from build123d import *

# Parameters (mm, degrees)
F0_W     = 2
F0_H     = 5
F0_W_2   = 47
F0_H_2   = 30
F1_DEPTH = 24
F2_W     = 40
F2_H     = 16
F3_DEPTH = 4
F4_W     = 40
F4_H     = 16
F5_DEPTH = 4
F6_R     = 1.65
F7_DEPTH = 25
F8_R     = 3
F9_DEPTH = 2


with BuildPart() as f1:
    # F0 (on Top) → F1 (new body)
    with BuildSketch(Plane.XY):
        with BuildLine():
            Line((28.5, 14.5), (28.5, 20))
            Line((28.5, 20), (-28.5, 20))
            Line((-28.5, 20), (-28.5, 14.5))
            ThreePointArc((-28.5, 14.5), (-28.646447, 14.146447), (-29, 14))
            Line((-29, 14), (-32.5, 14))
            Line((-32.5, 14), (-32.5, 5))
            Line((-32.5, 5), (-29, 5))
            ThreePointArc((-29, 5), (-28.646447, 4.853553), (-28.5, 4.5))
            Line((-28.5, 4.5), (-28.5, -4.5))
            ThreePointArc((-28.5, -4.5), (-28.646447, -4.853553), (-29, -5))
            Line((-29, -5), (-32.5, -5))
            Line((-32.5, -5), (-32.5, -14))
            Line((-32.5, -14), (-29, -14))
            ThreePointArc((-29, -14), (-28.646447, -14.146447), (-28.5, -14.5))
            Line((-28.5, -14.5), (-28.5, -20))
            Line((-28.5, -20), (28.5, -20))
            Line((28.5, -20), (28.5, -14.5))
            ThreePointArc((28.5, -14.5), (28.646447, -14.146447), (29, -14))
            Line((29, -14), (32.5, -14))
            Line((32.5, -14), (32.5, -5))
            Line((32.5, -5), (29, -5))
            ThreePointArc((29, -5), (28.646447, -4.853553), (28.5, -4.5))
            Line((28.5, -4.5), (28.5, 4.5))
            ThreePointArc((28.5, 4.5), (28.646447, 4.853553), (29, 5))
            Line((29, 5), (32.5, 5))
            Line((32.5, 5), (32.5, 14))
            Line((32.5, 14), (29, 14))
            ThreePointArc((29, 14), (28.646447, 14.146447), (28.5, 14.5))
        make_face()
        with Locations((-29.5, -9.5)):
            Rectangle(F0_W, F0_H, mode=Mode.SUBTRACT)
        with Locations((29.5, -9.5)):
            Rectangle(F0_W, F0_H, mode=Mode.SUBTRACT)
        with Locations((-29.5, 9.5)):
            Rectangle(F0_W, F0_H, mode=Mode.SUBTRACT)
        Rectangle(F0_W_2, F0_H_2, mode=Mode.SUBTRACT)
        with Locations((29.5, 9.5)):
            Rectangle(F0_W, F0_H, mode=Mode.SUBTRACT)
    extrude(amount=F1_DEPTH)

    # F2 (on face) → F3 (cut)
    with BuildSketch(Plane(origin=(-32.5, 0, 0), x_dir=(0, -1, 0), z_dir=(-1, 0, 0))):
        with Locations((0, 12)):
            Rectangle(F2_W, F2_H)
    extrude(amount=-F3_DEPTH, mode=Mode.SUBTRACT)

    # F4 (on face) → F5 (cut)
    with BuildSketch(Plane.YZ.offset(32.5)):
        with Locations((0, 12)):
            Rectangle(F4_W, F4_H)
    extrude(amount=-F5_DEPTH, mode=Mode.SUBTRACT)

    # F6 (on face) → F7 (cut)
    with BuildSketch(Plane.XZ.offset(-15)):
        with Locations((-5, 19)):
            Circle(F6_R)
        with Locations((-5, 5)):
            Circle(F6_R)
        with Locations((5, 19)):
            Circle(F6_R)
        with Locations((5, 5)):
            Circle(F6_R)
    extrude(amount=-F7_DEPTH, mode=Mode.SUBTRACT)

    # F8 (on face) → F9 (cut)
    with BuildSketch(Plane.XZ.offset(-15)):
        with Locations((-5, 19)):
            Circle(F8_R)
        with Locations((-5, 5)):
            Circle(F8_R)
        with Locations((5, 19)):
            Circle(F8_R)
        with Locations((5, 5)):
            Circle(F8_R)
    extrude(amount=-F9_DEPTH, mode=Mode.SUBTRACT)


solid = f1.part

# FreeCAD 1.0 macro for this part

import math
import FreeCAD as App
import Part
import Sketcher

V = App.Vector

doc = App.newDocument("Part")
body = doc.addObject("PartDesign::Body", "Body")

# Sketch on XY plane
sketch1 = doc.addObject("Sketcher::SketchObject", "Sketch")
body.addObject(sketch1)
sketch1.AttachmentSupport = (doc.XY_Plane, [""])
sketch1.MapMode = "FlatFace"
sketch1.addGeometry(Part.LineSegment(V(28.5, 14.5, 0), V(28.5, 20, 0)), False)
sketch1.addGeometry(Part.LineSegment(V(28.5, 20, 0), V(-28.5, 20, 0)), False)
sketch1.addGeometry(Part.LineSegment(V(-28.5, 20, 0), V(-28.5, 14.5, 0)), False)
sketch1.addGeometry(Part.ArcOfCircle(Part.Circle(V(-29.000001, 14.500001, 0), V(0, 0, 1), 0.500001), math.radians(-89.999847), math.radians(-0.000153)), False)
sketch1.addGeometry(Part.LineSegment(V(-29, 14, 0), V(-32.5, 14, 0)), False)
sketch1.addGeometry(Part.LineSegment(V(-32.5, 14, 0), V(-32.5, 5, 0)), False)
sketch1.addGeometry(Part.LineSegment(V(-32.5, 5, 0), V(-29, 5, 0)), False)
sketch1.addGeometry(Part.ArcOfCircle(Part.Circle(V(-29.000001, 4.499999, 0), V(0, 0, 1), 0.500001), math.radians(0.000153), math.radians(89.999847)), False)
sketch1.addGeometry(Part.LineSegment(V(-28.5, 4.5, 0), V(-28.5, -4.5, 0)), False)
sketch1.addGeometry(Part.ArcOfCircle(Part.Circle(V(-29.000001, -4.499999, 0), V(0, 0, 1), 0.500001), math.radians(-89.999847), math.radians(-0.000153)), False)
sketch1.addGeometry(Part.LineSegment(V(-29, -5, 0), V(-32.5, -5, 0)), False)
sketch1.addGeometry(Part.LineSegment(V(-32.5, -5, 0), V(-32.5, -14, 0)), False)
sketch1.addGeometry(Part.LineSegment(V(-32.5, -14, 0), V(-29, -14, 0)), False)
sketch1.addGeometry(Part.ArcOfCircle(Part.Circle(V(-29.000001, -14.500001, 0), V(0, 0, 1), 0.500001), math.radians(0.000153), math.radians(89.999847)), False)
sketch1.addGeometry(Part.LineSegment(V(-28.5, -14.5, 0), V(-28.5, -20, 0)), False)
sketch1.addGeometry(Part.LineSegment(V(-28.5, -20, 0), V(28.5, -20, 0)), False)
sketch1.addGeometry(Part.LineSegment(V(28.5, -20, 0), V(28.5, -14.5, 0)), False)
sketch1.addGeometry(Part.ArcOfCircle(Part.Circle(V(29.000001, -14.500001, 0), V(0, 0, 1), 0.500001), math.radians(90.000153), math.radians(179.999847)), False)
sketch1.addGeometry(Part.LineSegment(V(29, -14, 0), V(32.5, -14, 0)), False)
sketch1.addGeometry(Part.LineSegment(V(32.5, -14, 0), V(32.5, -5, 0)), False)
sketch1.addGeometry(Part.LineSegment(V(32.5, -5, 0), V(29, -5, 0)), False)
sketch1.addGeometry(Part.ArcOfCircle(Part.Circle(V(29.000001, -4.499999, 0), V(0, 0, 1), 0.500001), math.radians(-179.999847), math.radians(-90.000153)), False)
sketch1.addGeometry(Part.LineSegment(V(28.5, -4.5, 0), V(28.5, 4.5, 0)), False)
sketch1.addGeometry(Part.ArcOfCircle(Part.Circle(V(29.000001, 4.499999, 0), V(0, 0, 1), 0.500001), math.radians(90.000153), math.radians(179.999847)), False)
sketch1.addGeometry(Part.LineSegment(V(29, 5, 0), V(32.5, 5, 0)), False)
sketch1.addGeometry(Part.LineSegment(V(32.5, 5, 0), V(32.5, 14, 0)), False)
sketch1.addGeometry(Part.LineSegment(V(32.5, 14, 0), V(29, 14, 0)), False)
sketch1.addGeometry(Part.ArcOfCircle(Part.Circle(V(29.000001, 14.500001, 0), V(0, 0, 1), 0.500001), math.radians(-179.999847), math.radians(-90.000153)), False)
sketch1.addGeometry(Part.LineSegment(V(-28.5, -12, 0), V(-30.5, -12, 0)), False)
sketch1.addGeometry(Part.LineSegment(V(-30.5, -12, 0), V(-30.5, -7, 0)), False)
sketch1.addGeometry(Part.LineSegment(V(-30.5, -7, 0), V(-28.5, -7, 0)), False)
sketch1.addGeometry(Part.LineSegment(V(-28.5, -7, 0), V(-28.5, -12, 0)), False)
sketch1.addGeometry(Part.LineSegment(V(30.5, -12, 0), V(28.5, -12, 0)), False)
sketch1.addGeometry(Part.LineSegment(V(28.5, -12, 0), V(28.5, -7, 0)), False)
sketch1.addGeometry(Part.LineSegment(V(28.5, -7, 0), V(30.5, -7, 0)), False)
sketch1.addGeometry(Part.LineSegment(V(30.5, -7, 0), V(30.5, -12, 0)), False)
sketch1.addGeometry(Part.LineSegment(V(-28.5, 7, 0), V(-30.5, 7, 0)), False)
sketch1.addGeometry(Part.LineSegment(V(-30.5, 7, 0), V(-30.5, 12, 0)), False)
sketch1.addGeometry(Part.LineSegment(V(-30.5, 12, 0), V(-28.5, 12, 0)), False)
sketch1.addGeometry(Part.LineSegment(V(-28.5, 12, 0), V(-28.5, 7, 0)), False)
sketch1.addGeometry(Part.LineSegment(V(23.5, -15, 0), V(-23.5, -15, 0)), False)
sketch1.addGeometry(Part.LineSegment(V(-23.5, -15, 0), V(-23.5, 15, 0)), False)
sketch1.addGeometry(Part.LineSegment(V(-23.5, 15, 0), V(23.5, 15, 0)), False)
sketch1.addGeometry(Part.LineSegment(V(23.5, 15, 0), V(23.5, -15, 0)), False)
sketch1.addGeometry(Part.LineSegment(V(30.5, 7, 0), V(28.5, 7, 0)), False)
sketch1.addGeometry(Part.LineSegment(V(28.5, 7, 0), V(28.5, 12, 0)), False)
sketch1.addGeometry(Part.LineSegment(V(28.5, 12, 0), V(30.5, 12, 0)), False)
sketch1.addGeometry(Part.LineSegment(V(30.5, 12, 0), V(30.5, 7, 0)), False)
sketch1.addConstraint(Sketcher.Constraint("Coincident", 0, 2, 1, 1))
sketch1.addConstraint(Sketcher.Constraint("Coincident", 1, 2, 2, 1))
sketch1.addConstraint(Sketcher.Constraint("Coincident", 2, 2, 3, 2))
sketch1.addConstraint(Sketcher.Constraint("Coincident", 3, 1, 4, 1))
sketch1.addConstraint(Sketcher.Constraint("Coincident", 4, 2, 5, 1))
sketch1.addConstraint(Sketcher.Constraint("Coincident", 5, 2, 6, 1))
sketch1.addConstraint(Sketcher.Constraint("Coincident", 6, 2, 7, 2))
sketch1.addConstraint(Sketcher.Constraint("Coincident", 7, 1, 8, 1))
sketch1.addConstraint(Sketcher.Constraint("Coincident", 8, 2, 9, 2))
sketch1.addConstraint(Sketcher.Constraint("Coincident", 9, 1, 10, 1))
sketch1.addConstraint(Sketcher.Constraint("Coincident", 10, 2, 11, 1))
sketch1.addConstraint(Sketcher.Constraint("Coincident", 11, 2, 12, 1))
sketch1.addConstraint(Sketcher.Constraint("Coincident", 12, 2, 13, 2))
sketch1.addConstraint(Sketcher.Constraint("Coincident", 13, 1, 14, 1))
sketch1.addConstraint(Sketcher.Constraint("Coincident", 14, 2, 15, 1))
sketch1.addConstraint(Sketcher.Constraint("Coincident", 15, 2, 16, 1))
sketch1.addConstraint(Sketcher.Constraint("Coincident", 16, 2, 17, 2))
sketch1.addConstraint(Sketcher.Constraint("Coincident", 17, 1, 18, 1))
sketch1.addConstraint(Sketcher.Constraint("Coincident", 18, 2, 19, 1))
sketch1.addConstraint(Sketcher.Constraint("Coincident", 19, 2, 20, 1))
sketch1.addConstraint(Sketcher.Constraint("Coincident", 20, 2, 21, 2))
sketch1.addConstraint(Sketcher.Constraint("Coincident", 21, 1, 22, 1))
sketch1.addConstraint(Sketcher.Constraint("Coincident", 22, 2, 23, 2))
sketch1.addConstraint(Sketcher.Constraint("Coincident", 23, 1, 24, 1))
sketch1.addConstraint(Sketcher.Constraint("Coincident", 24, 2, 25, 1))
sketch1.addConstraint(Sketcher.Constraint("Coincident", 25, 2, 26, 1))
sketch1.addConstraint(Sketcher.Constraint("Coincident", 26, 2, 27, 2))
sketch1.addConstraint(Sketcher.Constraint("Coincident", 27, 1, 0, 1))
sketch1.addConstraint(Sketcher.Constraint("Coincident", 28, 2, 29, 1))
sketch1.addConstraint(Sketcher.Constraint("Coincident", 29, 2, 30, 1))
sketch1.addConstraint(Sketcher.Constraint("Coincident", 30, 2, 31, 1))
sketch1.addConstraint(Sketcher.Constraint("Coincident", 31, 2, 28, 1))
sketch1.addConstraint(Sketcher.Constraint("Coincident", 32, 2, 33, 1))
sketch1.addConstraint(Sketcher.Constraint("Coincident", 33, 2, 34, 1))
sketch1.addConstraint(Sketcher.Constraint("Coincident", 34, 2, 35, 1))
sketch1.addConstraint(Sketcher.Constraint("Coincident", 35, 2, 32, 1))
sketch1.addConstraint(Sketcher.Constraint("Coincident", 36, 2, 37, 1))
sketch1.addConstraint(Sketcher.Constraint("Coincident", 37, 2, 38, 1))
sketch1.addConstraint(Sketcher.Constraint("Coincident", 38, 2, 39, 1))
sketch1.addConstraint(Sketcher.Constraint("Coincident", 39, 2, 36, 1))
sketch1.addConstraint(Sketcher.Constraint("Coincident", 40, 2, 41, 1))
sketch1.addConstraint(Sketcher.Constraint("Coincident", 41, 2, 42, 1))
sketch1.addConstraint(Sketcher.Constraint("Coincident", 42, 2, 43, 1))
sketch1.addConstraint(Sketcher.Constraint("Coincident", 43, 2, 40, 1))
sketch1.addConstraint(Sketcher.Constraint("Coincident", 44, 2, 45, 1))
sketch1.addConstraint(Sketcher.Constraint("Coincident", 45, 2, 46, 1))
sketch1.addConstraint(Sketcher.Constraint("Coincident", 46, 2, 47, 1))
sketch1.addConstraint(Sketcher.Constraint("Coincident", 47, 2, 44, 1))
sketch1.addConstraint(Sketcher.Constraint("Vertical", 0))
sketch1.addConstraint(Sketcher.Constraint("Horizontal", 1))
sketch1.addConstraint(Sketcher.Constraint("Vertical", 2))
sketch1.addConstraint(Sketcher.Constraint("Horizontal", 4))
sketch1.addConstraint(Sketcher.Constraint("Vertical", 5))
sketch1.addConstraint(Sketcher.Constraint("Horizontal", 6))
sketch1.addConstraint(Sketcher.Constraint("Vertical", 8))
sketch1.addConstraint(Sketcher.Constraint("Horizontal", 10))
sketch1.addConstraint(Sketcher.Constraint("Vertical", 11))
sketch1.addConstraint(Sketcher.Constraint("Horizontal", 12))
sketch1.addConstraint(Sketcher.Constraint("Vertical", 14))
sketch1.addConstraint(Sketcher.Constraint("Horizontal", 15))
sketch1.addConstraint(Sketcher.Constraint("Vertical", 16))
sketch1.addConstraint(Sketcher.Constraint("Horizontal", 18))
sketch1.addConstraint(Sketcher.Constraint("Vertical", 19))
sketch1.addConstraint(Sketcher.Constraint("Horizontal", 20))
sketch1.addConstraint(Sketcher.Constraint("Vertical", 22))
sketch1.addConstraint(Sketcher.Constraint("Horizontal", 24))
sketch1.addConstraint(Sketcher.Constraint("Vertical", 25))
sketch1.addConstraint(Sketcher.Constraint("Horizontal", 26))
sketch1.addConstraint(Sketcher.Constraint("Horizontal", 28))
sketch1.addConstraint(Sketcher.Constraint("Vertical", 29))
sketch1.addConstraint(Sketcher.Constraint("Horizontal", 30))
sketch1.addConstraint(Sketcher.Constraint("Vertical", 31))
sketch1.addConstraint(Sketcher.Constraint("Horizontal", 32))
sketch1.addConstraint(Sketcher.Constraint("Vertical", 33))
sketch1.addConstraint(Sketcher.Constraint("Horizontal", 34))
sketch1.addConstraint(Sketcher.Constraint("Vertical", 35))
sketch1.addConstraint(Sketcher.Constraint("Horizontal", 36))
sketch1.addConstraint(Sketcher.Constraint("Vertical", 37))
sketch1.addConstraint(Sketcher.Constraint("Horizontal", 38))
sketch1.addConstraint(Sketcher.Constraint("Vertical", 39))
sketch1.addConstraint(Sketcher.Constraint("Horizontal", 40))
sketch1.addConstraint(Sketcher.Constraint("Vertical", 41))
sketch1.addConstraint(Sketcher.Constraint("Horizontal", 42))
sketch1.addConstraint(Sketcher.Constraint("Vertical", 43))
sketch1.addConstraint(Sketcher.Constraint("Horizontal", 44))
sketch1.addConstraint(Sketcher.Constraint("Vertical", 45))
sketch1.addConstraint(Sketcher.Constraint("Horizontal", 46))
sketch1.addConstraint(Sketcher.Constraint("Vertical", 47))
sketch1.addConstraint(Sketcher.Constraint("Equal", 3, 7))
sketch1.addConstraint(Sketcher.Constraint("Equal", 7, 9))
sketch1.addConstraint(Sketcher.Constraint("Equal", 9, 13))
sketch1.addConstraint(Sketcher.Constraint("Equal", 13, 17))
sketch1.addConstraint(Sketcher.Constraint("Equal", 17, 21))
sketch1.addConstraint(Sketcher.Constraint("Equal", 21, 23))
sketch1.addConstraint(Sketcher.Constraint("Equal", 23, 27))
sketch1.addConstraint(Sketcher.Constraint("Symmetric", 3, 3, 17, 3, -1, 1))
sketch1.addConstraint(Sketcher.Constraint("Symmetric", 7, 3, 21, 3, -1, 1))
sketch1.addConstraint(Sketcher.Constraint("Symmetric", 13, 3, 27, 3, -1, 1))
sketch1.addConstraint(Sketcher.Constraint("Symmetric", 9, 1, 23, 1, -1, 1))
sketch1.addConstraint(Sketcher.Constraint("Symmetric", 34, 2, 36, 2, -1, 1))
sketch1.addConstraint(Sketcher.Constraint("Symmetric", 32, 2, 38, 2, -1, 1))
sketch1.addConstraint(Sketcher.Constraint("Symmetric", 40, 2, 42, 2, -1, 1))
sketch1.addConstraint(Sketcher.Constraint("Symmetric", 30, 2, 44, 2, -1, 1))
sketch1.addConstraint(Sketcher.Constraint("Symmetric", 28, 2, 46, 2, -1, 1))
sketch1.addConstraint(Sketcher.Constraint("Symmetric", 13, 3, 17, 3, -2))
sketch1.addConstraint(Sketcher.Constraint("Symmetric", 10, 2, 19, 2, -2))
sketch1.addConstraint(Sketcher.Constraint("Symmetric", 31, 2, 32, 2, -2))
sketch1.addConstraint(Sketcher.Constraint("Symmetric", 29, 2, 34, 2, -2))
sketch1.addConstraint(Sketcher.Constraint("Horizontal", 27, 3, 2, 2))
sketch1.addConstraint(Sketcher.Constraint("Horizontal", 23, 3, 7, 1))
sketch1.addConstraint(Sketcher.Constraint("Horizontal", 21, 3, 8, 2))
sketch1.addConstraint(Sketcher.Constraint("Horizontal", 17, 3, 13, 1))
sketch1.addConstraint(Sketcher.Constraint("Horizontal", 13, 1, 16, 2))
sketch1.addConstraint(Sketcher.Constraint("Horizontal", 8, 2, 21, 1))
sketch1.addConstraint(Sketcher.Constraint("Horizontal", 7, 1, 22, 2))
sketch1.addConstraint(Sketcher.Constraint("Horizontal", 2, 2, 27, 1))
sketch1.addConstraint(Sketcher.Constraint("Vertical", 3, 3, 7, 3))
sketch1.addConstraint(Sketcher.Constraint("Vertical", 13, 3, 3, 1))
sketch1.addConstraint(Sketcher.Constraint("Vertical", 3, 1, 6, 2))
sketch1.addConstraint(Sketcher.Constraint("Vertical", 6, 2, 9, 1))
sketch1.addConstraint(Sketcher.Constraint("Vertical", 5, 2, 10, 2))
sketch1.addConstraint(Sketcher.Constraint("Vertical", 9, 1, 12, 2))
sketch1.addConstraint(Sketcher.Constraint("Vertical", 27, 3, 17, 1))
sketch1.addConstraint(Sketcher.Constraint("Vertical", 17, 1, 20, 2))
sketch1.addConstraint(Sketcher.Constraint("Vertical", 19, 2, 24, 2))
sketch1.addConstraint(Sketcher.Constraint("Vertical", 23, 1, 26, 2))
sketch1.addConstraint(Sketcher.Constraint("Vertical", 14, 2, 30, 2))
sketch1.addConstraint(Sketcher.Constraint("Equal", 5, 8))
sketch1.addConstraint(Sketcher.Constraint("Equal", 2, 14))
sketch1.addConstraint(Sketcher.Constraint("Radius", 3, 0.500001))
sketch1.addConstraint(Sketcher.Constraint("DistanceX", 1, 2, 1, 1, 57.0))
sketch1.addConstraint(Sketcher.Constraint("DistanceX", 28, 2, 28, 1, 2.0))
sketch1.addConstraint(Sketcher.Constraint("DistanceX", 40, 2, 40, 1, 47.0))
sketch1.addConstraint(Sketcher.Constraint("DistanceY", 5, 2, 5, 1, 9.0))
sketch1.addConstraint(Sketcher.Constraint("DistanceY", 29, 1, 29, 2, 5.0))
sketch1.addConstraint(Sketcher.Constraint("DistanceY", 41, 1, 41, 2, 30.0))
sketch1.addConstraint(Sketcher.Constraint("DistanceX", 4, 2, 4, 1, 3.5))
sketch1.addConstraint(Sketcher.Constraint("DistanceY", 0, 1, 0, 2, 5.5))
sketch1.addConstraint(Sketcher.Constraint("DistanceY", 28, 2, -1, 1, 12.0))
pad1 = doc.addObject("PartDesign::Pad", "Pad")
body.addObject(pad1)
pad1.Profile = sketch1
pad1.Length = 24

# Sketch on YZ plane
sketch2 = doc.addObject("Sketcher::SketchObject", "Sketch001")
body.addObject(sketch2)
sketch2.AttachmentSupport = (doc.YZ_Plane, [""])
sketch2.MapMode = "FlatFace"
sketch2.AttachmentOffset = App.Placement(V(0, 0, -32.5), App.Rotation())
sketch2.addGeometry(Part.LineSegment(V(20, 20, 0), V(20, 4, 0)), False)
sketch2.addGeometry(Part.LineSegment(V(20, 4, 0), V(-20, 4, 0)), False)
sketch2.addGeometry(Part.LineSegment(V(-20, 4, 0), V(-20, 20, 0)), False)
sketch2.addGeometry(Part.LineSegment(V(-20, 20, 0), V(20, 20, 0)), False)
sketch2.addConstraint(Sketcher.Constraint("Coincident", 0, 2, 1, 1))
sketch2.addConstraint(Sketcher.Constraint("Coincident", 1, 2, 2, 1))
sketch2.addConstraint(Sketcher.Constraint("Coincident", 2, 2, 3, 1))
sketch2.addConstraint(Sketcher.Constraint("Coincident", 3, 2, 0, 1))
sketch2.addConstraint(Sketcher.Constraint("Vertical", 0))
sketch2.addConstraint(Sketcher.Constraint("Horizontal", 1))
sketch2.addConstraint(Sketcher.Constraint("Vertical", 2))
sketch2.addConstraint(Sketcher.Constraint("Horizontal", 3))
sketch2.addConstraint(Sketcher.Constraint("DistanceX", 1, 2, 1, 1, 40.0))
sketch2.addConstraint(Sketcher.Constraint("DistanceY", 0, 2, 0, 1, 16.0))
sketch2.addConstraint(Sketcher.Constraint("DistanceX", -1, 1, 0, 2, 20.0))
sketch2.addConstraint(Sketcher.Constraint("DistanceY", -1, 1, 0, 2, 4.0))
pocket1 = doc.addObject("PartDesign::Pocket", "Pocket")
body.addObject(pocket1)
pocket1.Profile = sketch2
pocket1.Length = 4
pocket1.Reversed = True

# Sketch on YZ plane
sketch3 = doc.addObject("Sketcher::SketchObject", "Sketch002")
body.addObject(sketch3)
sketch3.AttachmentSupport = (doc.YZ_Plane, [""])
sketch3.MapMode = "FlatFace"
sketch3.AttachmentOffset = App.Placement(V(0, 0, 32.5), App.Rotation())
sketch3.addGeometry(Part.LineSegment(V(-20, 20, 0), V(-20, 4, 0)), False)
sketch3.addGeometry(Part.LineSegment(V(-20, 4, 0), V(20, 4, 0)), False)
sketch3.addGeometry(Part.LineSegment(V(20, 4, 0), V(20, 20, 0)), False)
sketch3.addGeometry(Part.LineSegment(V(20, 20, 0), V(-20, 20, 0)), False)
sketch3.addConstraint(Sketcher.Constraint("Coincident", 0, 2, 1, 1))
sketch3.addConstraint(Sketcher.Constraint("Coincident", 1, 2, 2, 1))
sketch3.addConstraint(Sketcher.Constraint("Coincident", 2, 2, 3, 1))
sketch3.addConstraint(Sketcher.Constraint("Coincident", 3, 2, 0, 1))
sketch3.addConstraint(Sketcher.Constraint("Vertical", 0))
sketch3.addConstraint(Sketcher.Constraint("Horizontal", 1))
sketch3.addConstraint(Sketcher.Constraint("Vertical", 2))
sketch3.addConstraint(Sketcher.Constraint("Horizontal", 3))
sketch3.addConstraint(Sketcher.Constraint("DistanceX", 1, 1, 1, 2, 40.0))
sketch3.addConstraint(Sketcher.Constraint("DistanceY", 0, 2, 0, 1, 16.0))
sketch3.addConstraint(Sketcher.Constraint("DistanceX", 0, 2, -1, 1, 20.0))
sketch3.addConstraint(Sketcher.Constraint("DistanceY", -1, 1, 0, 2, 4.0))
pocket2 = doc.addObject("PartDesign::Pocket", "Pocket001")
body.addObject(pocket2)
pocket2.Profile = sketch3
pocket2.Length = 4

# Sketch on XZ plane
sketch4 = doc.addObject("Sketcher::SketchObject", "Sketch003")
body.addObject(sketch4)
sketch4.AttachmentSupport = (doc.XZ_Plane, [""])
sketch4.MapMode = "FlatFace"
sketch4.AttachmentOffset = App.Placement(V(0, 0, -15), App.Rotation())
sketch4.addGeometry(Part.Circle(V(-5, 19, 0), V(0, 0, 1), 1.65), False)
sketch4.addGeometry(Part.Circle(V(-5, 5, 0), V(0, 0, 1), 1.65), False)
sketch4.addGeometry(Part.Circle(V(5, 19, 0), V(0, 0, 1), 1.65), False)
sketch4.addGeometry(Part.Circle(V(5, 5, 0), V(0, 0, 1), 1.65), False)
sketch4.addConstraint(Sketcher.Constraint("Equal", 0, 1))
sketch4.addConstraint(Sketcher.Constraint("Equal", 1, 2))
sketch4.addConstraint(Sketcher.Constraint("Equal", 2, 3))
sketch4.addConstraint(Sketcher.Constraint("Symmetric", 0, 3, 2, 3, -2))
sketch4.addConstraint(Sketcher.Constraint("Symmetric", 1, 3, 3, 3, -2))
sketch4.addConstraint(Sketcher.Constraint("Vertical", 0, 3, 1, 3))
sketch4.addConstraint(Sketcher.Constraint("Diameter", 0, 3.3))
sketch4.addConstraint(Sketcher.Constraint("DistanceX", 0, 3, -1, 1, 5.0))
sketch4.addConstraint(Sketcher.Constraint("DistanceY", -1, 1, 0, 3, 19.0))
sketch4.addConstraint(Sketcher.Constraint("DistanceY", -1, 1, 1, 3, 5.0))
pocket3 = doc.addObject("PartDesign::Pocket", "Pocket002")
body.addObject(pocket3)
pocket3.Profile = sketch4
pocket3.Length = 25

# Sketch on XZ plane
sketch5 = doc.addObject("Sketcher::SketchObject", "Sketch004")
body.addObject(sketch5)
sketch5.AttachmentSupport = (doc.XZ_Plane, [""])
sketch5.MapMode = "FlatFace"
sketch5.AttachmentOffset = App.Placement(V(0, 0, -15), App.Rotation())
sketch5.addGeometry(Part.Circle(V(-5, 19, 0), V(0, 0, 1), 3), False)
sketch5.addGeometry(Part.Circle(V(-5, 5, 0), V(0, 0, 1), 3), False)
sketch5.addGeometry(Part.Circle(V(5, 19, 0), V(0, 0, 1), 3), False)
sketch5.addGeometry(Part.Circle(V(5, 5, 0), V(0, 0, 1), 3), False)
sketch5.addConstraint(Sketcher.Constraint("Equal", 0, 1))
sketch5.addConstraint(Sketcher.Constraint("Equal", 1, 2))
sketch5.addConstraint(Sketcher.Constraint("Equal", 2, 3))
sketch5.addConstraint(Sketcher.Constraint("Symmetric", 0, 3, 2, 3, -2))
sketch5.addConstraint(Sketcher.Constraint("Symmetric", 1, 3, 3, 3, -2))
sketch5.addConstraint(Sketcher.Constraint("Vertical", 0, 3, 1, 3))
sketch5.addConstraint(Sketcher.Constraint("Diameter", 0, 6.0))
sketch5.addConstraint(Sketcher.Constraint("DistanceX", 0, 3, -1, 1, 5.0))
sketch5.addConstraint(Sketcher.Constraint("DistanceY", -1, 1, 0, 3, 19.0))
sketch5.addConstraint(Sketcher.Constraint("DistanceY", -1, 1, 1, 3, 5.0))
pocket4 = doc.addObject("PartDesign::Pocket", "Pocket003")
body.addObject(pocket4)
pocket4.Profile = sketch5
pocket4.Length = 2

doc.recompute()
